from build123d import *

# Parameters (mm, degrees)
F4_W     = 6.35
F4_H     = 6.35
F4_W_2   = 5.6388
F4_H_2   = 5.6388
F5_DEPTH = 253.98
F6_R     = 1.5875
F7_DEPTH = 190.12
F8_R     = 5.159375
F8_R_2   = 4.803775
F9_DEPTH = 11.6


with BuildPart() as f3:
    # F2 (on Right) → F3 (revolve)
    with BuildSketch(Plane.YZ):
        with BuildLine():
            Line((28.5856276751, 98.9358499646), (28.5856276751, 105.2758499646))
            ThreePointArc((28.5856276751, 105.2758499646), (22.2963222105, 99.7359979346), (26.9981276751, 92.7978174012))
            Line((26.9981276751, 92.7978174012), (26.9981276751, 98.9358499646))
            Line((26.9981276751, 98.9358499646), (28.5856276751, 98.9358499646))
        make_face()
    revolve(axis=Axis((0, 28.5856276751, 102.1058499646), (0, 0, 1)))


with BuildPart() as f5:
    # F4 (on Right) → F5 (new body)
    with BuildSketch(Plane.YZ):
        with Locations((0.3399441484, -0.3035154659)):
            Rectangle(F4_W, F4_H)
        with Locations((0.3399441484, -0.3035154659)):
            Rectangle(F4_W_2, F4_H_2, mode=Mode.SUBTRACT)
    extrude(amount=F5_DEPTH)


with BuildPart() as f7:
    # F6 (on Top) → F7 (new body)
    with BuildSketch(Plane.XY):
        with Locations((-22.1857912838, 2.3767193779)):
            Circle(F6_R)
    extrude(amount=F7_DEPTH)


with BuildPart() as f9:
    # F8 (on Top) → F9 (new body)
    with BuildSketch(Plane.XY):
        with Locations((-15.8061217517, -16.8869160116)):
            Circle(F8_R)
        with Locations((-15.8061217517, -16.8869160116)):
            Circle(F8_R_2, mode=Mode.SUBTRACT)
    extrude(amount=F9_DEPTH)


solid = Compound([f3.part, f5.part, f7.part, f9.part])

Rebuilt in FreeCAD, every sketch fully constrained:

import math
import FreeCAD as App
import Part
import Sketcher

V = App.Vector
Q = App.Units.Quantity

doc = App.newDocument("Part")
body = doc.addObject("PartDesign::Body", "Body")

sketch1 = doc.addObject("Sketcher::SketchObject", "Sketch")
body.addObject(sketch1)
sketch1.AttachmentSupport = (doc.YZ_Plane, [""])
sketch1.MapMode = "FlatFace"
sketch1.addGeometry([
    Part.LineSegment(V(28.585628, 98.93585, 0), V(28.585628, 105.27585, 0)),
    Part.ArcOfCircle(Part.Circle(V(28.585628, 98.93585, 0), V(0, 0, 1), 6.34), math.radians(90), math.radians(255.499153)),
    Part.LineSegment(V(26.998128, 92.797817, 0), V(26.998128, 98.93585, 0)),
    Part.LineSegment(V(26.998128, 98.93585, 0), V(28.585628, 98.93585, 0)),
], False)
sketch1.addGeometry(Part.LineSegment(V(28.585628, 92.797817, 0), V(28.585628, 105.27585, 0)), True)
sketch1.addConstraint([
    Sketcher.Constraint("Coincident", 0, 2, 1, 1),
    Sketcher.Constraint("Coincident", 1, 2, 2, 1),
    Sketcher.Constraint("Coincident", 2, 2, 3, 1),
    Sketcher.Constraint("Coincident", 3, 2, 0, 1),
    Sketcher.Constraint("Vertical", 0),
    Sketcher.Constraint("Vertical", 2),
    Sketcher.Constraint("Horizontal", 3),
    Sketcher.Constraint("Vertical", 4),
    Sketcher.Constraint("Coincident", 3, 2, 1, 3),
    Sketcher.Constraint("Coincident", 4, 2, 0, 2),
    Sketcher.Constraint("Horizontal", 1, 2, 4, 1),
    Sketcher.Constraint("DistanceX", 3, 1, 3, 2, Q("0.0625 in")),
    Sketcher.Constraint("Radius", 1, Q("6.34 mm")),
    Sketcher.Constraint("DistanceY", -1, 1, 1, 3, Q("98.93585 mm")),
    Sketcher.Constraint("DistanceX", -1, 1, 1, 3, Q("28.585628 mm")),
])
revolution = doc.addObject("PartDesign::Revolution", "Revolution")
body.addObject(revolution)
revolution.Profile = sketch1
revolution.ReferenceAxis = (sketch1, ["Axis0"])
revolution.Angle = 360
body2 = doc.addObject("PartDesign::Body", "Body001")

sketch2 = doc.addObject("Sketcher::SketchObject", "Sketch001")
body2.addObject(sketch2)
sketch2.AttachmentSupport = (doc.getObject("YZ_Plane001"), [""])
sketch2.MapMode = "FlatFace"
sketch2.addGeometry([
    Part.LineSegment(V(-2.835056, 2.871485, 0), V(-2.835056, -3.478515, 0)),
    Part.LineSegment(V(-2.835056, -3.478515, 0), V(3.514944, -3.478515, 0)),
    Part.LineSegment(V(3.514944, -3.478515, 0), V(3.514944, 2.871485, 0)),
    Part.LineSegment(V(3.514944, 2.871485, 0), V(-2.835056, 2.871485, 0)),
    Part.LineSegment(V(3.159344, -3.122915, 0), V(-2.479456, -3.122915, 0)),
    Part.LineSegment(V(-2.479456, -3.122915, 0), V(-2.479456, 2.515885, 0)),
    Part.LineSegment(V(-2.479456, 2.515885, 0), V(3.159344, 2.515885, 0)),
    Part.LineSegment(V(3.159344, 2.515885, 0), V(3.159344, -3.122915, 0)),
], False)
sketch2.addConstraint([
    Sketcher.Constraint("Coincident", 0, 2, 1, 1),
    Sketcher.Constraint("Coincident", 1, 2, 2, 1),
    Sketcher.Constraint("Coincident", 2, 2, 3, 1),
    Sketcher.Constraint("Coincident", 3, 2, 0, 1),
    Sketcher.Constraint("Coincident", 4, 2, 5, 1),
    Sketcher.Constraint("Coincident", 5, 2, 6, 1),
    Sketcher.Constraint("Coincident", 6, 2, 7, 1),
    Sketcher.Constraint("Coincident", 7, 2, 4, 1),
    Sketcher.Constraint("Vertical", 0),
    Sketcher.Constraint("Horizontal", 1),
    Sketcher.Constraint("Vertical", 2),
    Sketcher.Constraint("Horizontal", 3),
    Sketcher.Constraint("Horizontal", 4),
    Sketcher.Constraint("Vertical", 5),
    Sketcher.Constraint("Horizontal", 6),
    Sketcher.Constraint("Vertical", 7),
    Sketcher.Constraint("Equal", 3, 0),
    Sketcher.Constraint("Equal", 6, 5),
    Sketcher.Constraint("DistanceX", 1, 1, 1, 2, Q("0.25 in")),
    Sketcher.Constraint("DistanceX", 4, 2, 4, 1, Q("0.222 in")),
    Sketcher.Constraint("DistanceX", 0, 2, 4, 2, Q("0.014 in")),
    Sketcher.Constraint("DistanceY", 0, 2, 4, 2, Q("0.014 in")),
    Sketcher.Constraint("DistanceX", 0, 2, -1, 1, Q("2.835056 mm")),
    Sketcher.Constraint("DistanceY", 0, 2, -1, 1, Q("3.478515 mm")),
])
pad1 = doc.addObject("PartDesign::Pad", "Pad")
body2.addObject(pad1)
pad1.Profile = sketch2
pad1.Length = 253.98
body3 = doc.addObject("PartDesign::Body", "Body002")

sketch3 = doc.addObject("Sketcher::SketchObject", "Sketch002")
body3.addObject(sketch3)
sketch3.AttachmentSupport = (doc.getObject("XY_Plane002"), [""])
sketch3.MapMode = "FlatFace"
sketch3.addGeometry(Part.Circle(V(-22.185791, 2.376719, 0), V(0, 0, 1), 1.5875), False)
sketch3.addConstraint([
    Sketcher.Constraint("Diameter", 0, Q("0.125 in")),
    Sketcher.Constraint("DistanceX", 0, 3, -1, 1, Q("22.185791 mm")),
    Sketcher.Constraint("DistanceY", -1, 1, 0, 3, Q("2.376719 mm")),
])
pad2 = doc.addObject("PartDesign::Pad", "Pad001")
body3.addObject(pad2)
pad2.Profile = sketch3
pad2.Length = 190.12
body4 = doc.addObject("PartDesign::Body", "Body003")

sketch4 = doc.addObject("Sketcher::SketchObject", "Sketch003")
body4.addObject(sketch4)
sketch4.AttachmentSupport = (doc.getObject("XY_Plane003"), [""])
sketch4.MapMode = "FlatFace"
sketch4.addGeometry([
    Part.Circle(V(-15.806122, -16.886916, 0), V(0, 0, 1), 5.159375),
    Part.Circle(V(-15.806122, -16.886916, 0), V(0, 0, 1), 4.803775),
], False)
sketch4.addConstraint([
    Sketcher.Constraint("Coincident", 1, 3, 0, 3),
    Sketcher.Constraint("Diameter", 0, Q("0.40625 in")),
    Sketcher.Constraint("Diameter", 1, Q("9.60755 mm")),
    Sketcher.Constraint("DistanceX", 0, 3, -1, 1, Q("15.806122 mm")),
    Sketcher.Constraint("DistanceY", 0, 3, -1, 1, Q("16.886916 mm")),
])
pad3 = doc.addObject("PartDesign::Pad", "Pad002")
body4.addObject(pad3)
pad3.Profile = sketch4
pad3.Length = 11.6

doc.recompute()
